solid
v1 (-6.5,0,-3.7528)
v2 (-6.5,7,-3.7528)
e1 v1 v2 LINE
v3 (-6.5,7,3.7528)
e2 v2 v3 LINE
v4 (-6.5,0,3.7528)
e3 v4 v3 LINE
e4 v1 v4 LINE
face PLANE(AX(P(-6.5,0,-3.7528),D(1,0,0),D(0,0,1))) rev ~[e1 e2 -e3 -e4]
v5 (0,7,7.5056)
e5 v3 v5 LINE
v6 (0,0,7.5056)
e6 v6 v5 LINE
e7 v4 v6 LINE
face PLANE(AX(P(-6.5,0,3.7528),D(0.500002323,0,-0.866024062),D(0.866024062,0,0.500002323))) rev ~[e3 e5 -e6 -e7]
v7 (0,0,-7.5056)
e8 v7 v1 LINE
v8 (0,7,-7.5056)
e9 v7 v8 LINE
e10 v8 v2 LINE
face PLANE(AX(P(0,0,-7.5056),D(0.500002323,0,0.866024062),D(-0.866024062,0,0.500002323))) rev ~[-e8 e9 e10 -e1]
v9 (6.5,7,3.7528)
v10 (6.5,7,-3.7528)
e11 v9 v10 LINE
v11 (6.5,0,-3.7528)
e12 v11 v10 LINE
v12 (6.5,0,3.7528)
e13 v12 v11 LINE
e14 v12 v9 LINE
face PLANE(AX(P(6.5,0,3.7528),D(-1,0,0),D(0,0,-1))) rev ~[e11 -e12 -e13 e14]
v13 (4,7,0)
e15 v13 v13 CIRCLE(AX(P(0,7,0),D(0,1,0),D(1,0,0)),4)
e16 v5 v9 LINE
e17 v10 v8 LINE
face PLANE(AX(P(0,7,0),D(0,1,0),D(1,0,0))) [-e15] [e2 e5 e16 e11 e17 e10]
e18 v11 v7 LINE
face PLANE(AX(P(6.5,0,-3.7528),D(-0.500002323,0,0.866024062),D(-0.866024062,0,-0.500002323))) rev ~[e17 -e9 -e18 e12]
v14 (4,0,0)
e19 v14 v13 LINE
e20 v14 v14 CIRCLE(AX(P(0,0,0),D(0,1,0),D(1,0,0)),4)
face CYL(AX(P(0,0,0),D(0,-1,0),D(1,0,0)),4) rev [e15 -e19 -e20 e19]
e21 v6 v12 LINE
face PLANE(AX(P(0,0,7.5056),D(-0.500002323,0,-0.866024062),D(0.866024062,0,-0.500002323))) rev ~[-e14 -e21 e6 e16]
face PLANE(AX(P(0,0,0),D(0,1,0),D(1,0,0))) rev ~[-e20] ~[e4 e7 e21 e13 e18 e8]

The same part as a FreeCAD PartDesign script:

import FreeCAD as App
import Part
import Sketcher

V = App.Vector
Q = App.Units.Quantity


def add_polygon(sketch, points):
    """Adds a closed chain of lines whose ends are joined by coincident constraints."""
    first, n = sketch.GeometryCount, len(points)
    for a, b in zip(points, points[1:] + points[:1]):
        sketch.addGeometry(Part.LineSegment(App.Vector(*a, 0), App.Vector(*b, 0)), False)
    for i in range(n):
        sketch.addConstraint(Sketcher.Constraint("Coincident", first + i, 2, first + (i + 1) % n, 1))

doc = App.newDocument("Part")
body = doc.addObject("PartDesign::Body", "Body")

sketch1 = body.newObject("Sketcher::SketchObject", "Sketch")
sketch1.AttachmentSupport = (doc.getObject("XZ_Plane"), [""])
sketch1.MapMode = "FlatFace"
add_polygon(sketch1, [(-6.5, -3.7528), (-6.5, 3.7528), (0, 7.5056), (6.5, 3.7528), (6.5, -3.7528), (0, -7.5056)])
sketch1.addGeometry(Part.Circle(V(0, 0, 0), V(0, 0, 1), 4), False)
sketch1.addConstraint(Sketcher.Constraint("Vertical", 0))
sketch1.addConstraint(Sketcher.Constraint("Vertical", 3))
sketch1.addConstraint(Sketcher.Constraint("Coincident", 6, 3, -1, 1))
sketch1.addConstraint(Sketcher.Constraint("Symmetric", 0, 2, 3, 2, -1, 1))
sketch1.addConstraint(Sketcher.Constraint("Symmetric", 1, 2, 4, 2, -1, 1))
sketch1.addConstraint(Sketcher.Constraint("PointOnObject", 1, 2, -2))
sketch1.addConstraint(Sketcher.Constraint("Parallel", 2, 5))
sketch1.addConstraint(Sketcher.Constraint("Horizontal", 0, 2, 2, 2))
sketch1.addConstraint(Sketcher.Constraint("Diameter", 6, Q("8 mm")))
sketch1.addConstraint(Sketcher.Constraint("DistanceX", 0, 2, 2, 2, Q("13 mm")))
sketch1.addConstraint(Sketcher.Constraint("Angle", 1, Q("30.0002 deg")))
sketch1.addConstraint(Sketcher.Constraint("DistanceY", 0, 1, 0, 2, Q("7.5056 mm")))
pad1 = body.newObject("PartDesign::Pad", "Pad")
pad1.Profile = sketch1
pad1.Length = 7
pad1.Reversed = True

doc.recompute()
